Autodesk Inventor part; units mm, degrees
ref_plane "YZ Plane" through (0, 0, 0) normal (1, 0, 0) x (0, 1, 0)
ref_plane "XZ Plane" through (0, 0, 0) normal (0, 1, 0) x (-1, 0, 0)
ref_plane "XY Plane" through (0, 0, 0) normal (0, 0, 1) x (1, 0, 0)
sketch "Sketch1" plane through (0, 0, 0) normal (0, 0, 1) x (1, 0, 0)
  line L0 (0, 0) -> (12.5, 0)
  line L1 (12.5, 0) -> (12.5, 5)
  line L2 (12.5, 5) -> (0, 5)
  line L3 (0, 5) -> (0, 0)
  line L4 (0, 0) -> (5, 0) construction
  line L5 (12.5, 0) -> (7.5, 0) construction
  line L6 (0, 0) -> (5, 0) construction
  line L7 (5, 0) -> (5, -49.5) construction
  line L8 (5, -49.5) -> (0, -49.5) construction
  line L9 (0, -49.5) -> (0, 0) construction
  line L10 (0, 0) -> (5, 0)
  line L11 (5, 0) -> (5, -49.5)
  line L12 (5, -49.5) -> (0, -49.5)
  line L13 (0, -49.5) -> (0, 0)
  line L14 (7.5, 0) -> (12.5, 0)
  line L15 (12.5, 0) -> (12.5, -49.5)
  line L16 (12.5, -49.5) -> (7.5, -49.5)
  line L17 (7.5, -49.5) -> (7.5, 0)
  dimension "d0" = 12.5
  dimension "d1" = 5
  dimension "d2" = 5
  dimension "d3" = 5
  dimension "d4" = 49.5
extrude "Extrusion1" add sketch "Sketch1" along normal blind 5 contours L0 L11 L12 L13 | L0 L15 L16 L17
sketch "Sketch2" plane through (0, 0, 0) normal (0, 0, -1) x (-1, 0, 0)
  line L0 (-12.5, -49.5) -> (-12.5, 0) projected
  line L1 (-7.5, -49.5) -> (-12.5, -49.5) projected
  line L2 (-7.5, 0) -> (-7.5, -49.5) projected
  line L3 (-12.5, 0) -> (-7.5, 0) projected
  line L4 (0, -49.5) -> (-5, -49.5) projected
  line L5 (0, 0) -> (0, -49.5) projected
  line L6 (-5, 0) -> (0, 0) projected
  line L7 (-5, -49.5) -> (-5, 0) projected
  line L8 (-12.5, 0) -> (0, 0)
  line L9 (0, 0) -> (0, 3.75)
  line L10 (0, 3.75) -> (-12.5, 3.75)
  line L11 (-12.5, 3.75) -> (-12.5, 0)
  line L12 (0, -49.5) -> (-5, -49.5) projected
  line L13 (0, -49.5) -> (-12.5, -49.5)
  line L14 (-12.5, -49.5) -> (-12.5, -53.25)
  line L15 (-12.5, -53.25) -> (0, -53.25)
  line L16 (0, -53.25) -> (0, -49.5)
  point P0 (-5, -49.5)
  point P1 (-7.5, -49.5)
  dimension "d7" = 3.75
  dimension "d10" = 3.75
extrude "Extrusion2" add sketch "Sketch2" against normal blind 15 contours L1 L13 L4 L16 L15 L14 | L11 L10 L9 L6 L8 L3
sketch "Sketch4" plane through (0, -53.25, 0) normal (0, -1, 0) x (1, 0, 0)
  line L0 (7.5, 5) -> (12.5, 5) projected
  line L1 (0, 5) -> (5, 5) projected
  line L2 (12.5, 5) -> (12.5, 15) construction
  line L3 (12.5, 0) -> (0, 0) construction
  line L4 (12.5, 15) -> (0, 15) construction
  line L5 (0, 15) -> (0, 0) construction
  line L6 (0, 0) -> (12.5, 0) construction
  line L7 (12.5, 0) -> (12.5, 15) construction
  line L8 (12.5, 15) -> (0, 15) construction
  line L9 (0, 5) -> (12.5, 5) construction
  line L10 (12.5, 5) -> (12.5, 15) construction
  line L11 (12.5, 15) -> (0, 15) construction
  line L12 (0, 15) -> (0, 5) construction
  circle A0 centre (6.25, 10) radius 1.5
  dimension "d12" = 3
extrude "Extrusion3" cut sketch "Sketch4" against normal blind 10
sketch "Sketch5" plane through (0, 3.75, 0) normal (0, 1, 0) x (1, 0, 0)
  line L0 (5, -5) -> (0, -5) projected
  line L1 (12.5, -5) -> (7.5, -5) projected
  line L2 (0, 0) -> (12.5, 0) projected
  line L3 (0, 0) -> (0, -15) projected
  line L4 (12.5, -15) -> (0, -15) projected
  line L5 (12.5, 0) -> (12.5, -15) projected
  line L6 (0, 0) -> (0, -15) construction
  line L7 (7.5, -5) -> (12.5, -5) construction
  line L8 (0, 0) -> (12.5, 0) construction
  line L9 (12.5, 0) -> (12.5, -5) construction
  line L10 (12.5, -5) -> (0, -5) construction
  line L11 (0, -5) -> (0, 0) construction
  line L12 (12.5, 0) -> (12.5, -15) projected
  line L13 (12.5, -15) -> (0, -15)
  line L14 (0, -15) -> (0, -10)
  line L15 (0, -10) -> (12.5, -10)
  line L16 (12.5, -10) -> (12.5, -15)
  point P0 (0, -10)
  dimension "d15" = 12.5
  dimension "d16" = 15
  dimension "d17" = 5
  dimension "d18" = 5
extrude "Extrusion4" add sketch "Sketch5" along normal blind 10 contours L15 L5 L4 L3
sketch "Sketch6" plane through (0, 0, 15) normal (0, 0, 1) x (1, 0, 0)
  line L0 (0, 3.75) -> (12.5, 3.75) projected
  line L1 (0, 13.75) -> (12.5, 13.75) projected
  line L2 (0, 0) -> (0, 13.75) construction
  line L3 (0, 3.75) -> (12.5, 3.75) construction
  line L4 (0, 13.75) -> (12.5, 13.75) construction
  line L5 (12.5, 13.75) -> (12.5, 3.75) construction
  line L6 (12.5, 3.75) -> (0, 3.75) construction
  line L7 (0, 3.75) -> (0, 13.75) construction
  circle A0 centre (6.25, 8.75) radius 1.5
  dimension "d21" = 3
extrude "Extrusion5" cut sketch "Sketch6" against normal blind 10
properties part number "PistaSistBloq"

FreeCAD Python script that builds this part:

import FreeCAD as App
import Part
import Sketcher

V = App.Vector

doc = App.newDocument("Part")
body = doc.addObject("PartDesign::Body", "Body")
body.AllowCompound = True

# Sketch on XY plane
sketch1 = body.newObject("Sketcher::SketchObject", "Sketch")
sketch1.AttachmentSupport = (doc.getObject("XY_Plane"), [""])
sketch1.MapMode = "FlatFace"
sketch1.addGeometry([
    Part.LineSegment(V(5, 0, 0), V(0, 0, 0)),  # 0
    Part.LineSegment(V(0, 0, 0), V(0, -49.5, 0)),  # 1
    Part.LineSegment(V(0, -49.5, 0), V(5, -49.5, 0)),  # 2
    Part.LineSegment(V(5, -49.5, 0), V(5, 0, 0)),  # 3
    Part.LineSegment(V(12.5, 0, 0), V(7.5, 0, 0)),  # 4
    Part.LineSegment(V(7.5, 0, 0), V(7.5, -49.5, 0)),  # 5
    Part.LineSegment(V(7.5, -49.5, 0), V(12.5, -49.5, 0)),  # 6
    Part.LineSegment(V(12.5, -49.5, 0), V(12.5, 0, 0)),  # 7
], False)
sketch1.addConstraint([
    Sketcher.Constraint("Coincident", 0, 2, 1, 1),
    Sketcher.Constraint("Coincident", 1, 2, 2, 1),
    Sketcher.Constraint("Coincident", 2, 2, 3, 1),
    Sketcher.Constraint("Coincident", 3, 2, 0, 1),
    Sketcher.Constraint("Coincident", 4, 2, 5, 1),
    Sketcher.Constraint("Coincident", 5, 2, 6, 1),
    Sketcher.Constraint("Coincident", 6, 2, 7, 1),
    Sketcher.Constraint("Coincident", 7, 2, 4, 1),
    Sketcher.Constraint("Horizontal", 0),
    Sketcher.Constraint("Vertical", 1),
    Sketcher.Constraint("Horizontal", 2),
    Sketcher.Constraint("Vertical", 3),
    Sketcher.Constraint("Horizontal", 4),
    Sketcher.Constraint("Vertical", 5),
    Sketcher.Constraint("Horizontal", 6),
    Sketcher.Constraint("Vertical", 7),
    Sketcher.Constraint("Coincident", 0, 2, -1, 1),
    Sketcher.Constraint("PointOnObject", 4, 2, -1),
    Sketcher.Constraint("Horizontal", 2, 2, 5, 2),
    Sketcher.Constraint("Equal", 2, 4),
    Sketcher.Constraint("DistanceX", 0, 2, 0, 1, 5.0),
    Sketcher.Constraint("DistanceY", 1, 2, 1, 1, 49.5),
    Sketcher.Constraint("DistanceX", -1, 1, 6, 2, 12.5),
])
pad1 = body.newObject("PartDesign::Pad", "Pad")
pad1.Profile = sketch1
pad1.Length = 5

# Sketch on XY plane
sketch2 = body.newObject("Sketcher::SketchObject", "Sketch001")
sketch2.AttachmentSupport = (doc.getObject("XY_Plane"), [""])
sketch2.MapMode = "FlatFace"
sketch2.addGeometry([
    Part.LineSegment(V(0, -49.5, 0), V(12.5, -49.5, 0)),  # 0
    Part.LineSegment(V(12.5, -49.5, 0), V(12.5, -53.25, 0)),  # 1
    Part.LineSegment(V(12.5, -53.25, 0), V(0, -53.25, 0)),  # 2
    Part.LineSegment(V(0, -53.25, 0), V(0, -49.5, 0)),  # 3
    Part.LineSegment(V(12.5, 3.75, 0), V(12.5, 0, 0)),  # 4
    Part.LineSegment(V(12.5, 0, 0), V(0, 0, 0)),  # 5
    Part.LineSegment(V(0, 0, 0), V(0, 3.75, 0)),  # 6
    Part.LineSegment(V(0, 3.75, 0), V(12.5, 3.75, 0)),  # 7
], False)
sketch2.addConstraint([
    Sketcher.Constraint("Coincident", 0, 2, 1, 1),
    Sketcher.Constraint("Coincident", 1, 2, 2, 1),
    Sketcher.Constraint("Coincident", 2, 2, 3, 1),
    Sketcher.Constraint("Coincident", 3, 2, 0, 1),
    Sketcher.Constraint("Coincident", 4, 2, 5, 1),
    Sketcher.Constraint("Coincident", 5, 2, 6, 1),
    Sketcher.Constraint("Coincident", 6, 2, 7, 1),
    Sketcher.Constraint("Coincident", 7, 2, 4, 1),
    Sketcher.Constraint("Horizontal", 0),
    Sketcher.Constraint("Vertical", 1),
    Sketcher.Constraint("Horizontal", 2),
    Sketcher.Constraint("Vertical", 3),
    Sketcher.Constraint("Vertical", 4),
    Sketcher.Constraint("Horizontal", 5),
    Sketcher.Constraint("Vertical", 6),
    Sketcher.Constraint("Horizontal", 7),
    Sketcher.Constraint("Coincident", 5, 2, -1, 1),
    Sketcher.Constraint("PointOnObject", 2, 2, -2),
    Sketcher.Constraint("Vertical", 1, 2, 4, 2),
    Sketcher.Constraint("Equal", 3, 4),
    Sketcher.Constraint("DistanceY", 1, 2, 1, 1, 3.75),
    Sketcher.Constraint("DistanceX", 0, 1, 0, 2, 12.5),
    Sketcher.Constraint("DistanceY", 2, 2, 6, 2, 57.0),
])
pad2 = body.newObject("PartDesign::Pad", "Pad001")
pad2.Profile = sketch2
pad2.Length = 15

# Sketch on XZ plane
sketch3 = body.newObject("Sketcher::SketchObject", "Sketch002")
sketch3.AttachmentSupport = (doc.getObject("XZ_Plane"), [""])
sketch3.MapMode = "FlatFace"
sketch3.AttachmentOffset = App.Placement(V(0, 0, 53.25), App.Rotation())
sketch3.addGeometry(Part.Circle(V(6.25, 10, 0), V(0, 0, 1), 1.5), False)
sketch3.addConstraint([
    Sketcher.Constraint("Diameter", 0, 3.0),
    Sketcher.Constraint("DistanceY", -1, 1, 0, 3, 10.0),
    Sketcher.Constraint("DistanceX", -1, 1, 0, 3, 6.25),
])
pocket1 = body.newObject("PartDesign::Pocket", "Pocket")
pocket1.Profile = sketch3
pocket1.Length = 10

# Sketch on XZ plane
sketch4 = body.newObject("Sketcher::SketchObject", "Sketch003")
sketch4.AttachmentSupport = (doc.getObject("XZ_Plane"), [""])
sketch4.MapMode = "FlatFace"
sketch4.AttachmentOffset = App.Placement(V(0, 0, -3.75), App.Rotation())
sketch4.addGeometry([
    Part.LineSegment(V(12.5, 10, 0), V(0, 10, 0)),
    Part.LineSegment(V(0, 10, 0), V(0, 15, 0)),
    Part.LineSegment(V(0, 15, 0), V(12.5, 15, 0)),
    Part.LineSegment(V(12.5, 15, 0), V(12.5, 10, 0)),
], False)
sketch4.addConstraint([
    Sketcher.Constraint("Coincident", 0, 2, 1, 1),
    Sketcher.Constraint("Coincident", 1, 2, 2, 1),
    Sketcher.Constraint("Coincident", 2, 2, 3, 1),
    Sketcher.Constraint("Coincident", 3, 2, 0, 1),
    Sketcher.Constraint("Horizontal", 0),
    Sketcher.Constraint("Vertical", 1),
    Sketcher.Constraint("Horizontal", 2),
    Sketcher.Constraint("Vertical", 3),
    Sketcher.Constraint("PointOnObject", 0, 2, -2),
    Sketcher.Constraint("DistanceY", 1, 1, 1, 2, 5.0),
    Sketcher.Constraint("DistanceX", 0, 2, 0, 1, 12.5),
    Sketcher.Constraint("DistanceY", -1, 1, 1, 2, 15.0),
])
pad3 = body.newObject("PartDesign::Pad", "Pad002")
pad3.Profile = sketch4
pad3.Length = 10
pad3.Reversed = True

# Sketch on XY plane
sketch5 = body.newObject("Sketcher::SketchObject", "Sketch004")
sketch5.AttachmentSupport = (doc.getObject("XY_Plane"), [""])
sketch5.MapMode = "FlatFace"
sketch5.AttachmentOffset = App.Placement(V(0, 0, 15), App.Rotation())
sketch5.addGeometry(Part.Circle(V(6.25, 8.75, 0), V(0, 0, 1), 1.5), False)
sketch5.addConstraint([
    Sketcher.Constraint("Diameter", 0, 3.0),
    Sketcher.Constraint("DistanceX", -1, 1, 0, 3, 6.25),
    Sketcher.Constraint("DistanceY", -1, 1, 0, 3, 8.75),
])
pocket2 = body.newObject("PartDesign::Pocket", "Pocket001")
pocket2.Profile = sketch5
pocket2.Length = 10

doc.recompute()
